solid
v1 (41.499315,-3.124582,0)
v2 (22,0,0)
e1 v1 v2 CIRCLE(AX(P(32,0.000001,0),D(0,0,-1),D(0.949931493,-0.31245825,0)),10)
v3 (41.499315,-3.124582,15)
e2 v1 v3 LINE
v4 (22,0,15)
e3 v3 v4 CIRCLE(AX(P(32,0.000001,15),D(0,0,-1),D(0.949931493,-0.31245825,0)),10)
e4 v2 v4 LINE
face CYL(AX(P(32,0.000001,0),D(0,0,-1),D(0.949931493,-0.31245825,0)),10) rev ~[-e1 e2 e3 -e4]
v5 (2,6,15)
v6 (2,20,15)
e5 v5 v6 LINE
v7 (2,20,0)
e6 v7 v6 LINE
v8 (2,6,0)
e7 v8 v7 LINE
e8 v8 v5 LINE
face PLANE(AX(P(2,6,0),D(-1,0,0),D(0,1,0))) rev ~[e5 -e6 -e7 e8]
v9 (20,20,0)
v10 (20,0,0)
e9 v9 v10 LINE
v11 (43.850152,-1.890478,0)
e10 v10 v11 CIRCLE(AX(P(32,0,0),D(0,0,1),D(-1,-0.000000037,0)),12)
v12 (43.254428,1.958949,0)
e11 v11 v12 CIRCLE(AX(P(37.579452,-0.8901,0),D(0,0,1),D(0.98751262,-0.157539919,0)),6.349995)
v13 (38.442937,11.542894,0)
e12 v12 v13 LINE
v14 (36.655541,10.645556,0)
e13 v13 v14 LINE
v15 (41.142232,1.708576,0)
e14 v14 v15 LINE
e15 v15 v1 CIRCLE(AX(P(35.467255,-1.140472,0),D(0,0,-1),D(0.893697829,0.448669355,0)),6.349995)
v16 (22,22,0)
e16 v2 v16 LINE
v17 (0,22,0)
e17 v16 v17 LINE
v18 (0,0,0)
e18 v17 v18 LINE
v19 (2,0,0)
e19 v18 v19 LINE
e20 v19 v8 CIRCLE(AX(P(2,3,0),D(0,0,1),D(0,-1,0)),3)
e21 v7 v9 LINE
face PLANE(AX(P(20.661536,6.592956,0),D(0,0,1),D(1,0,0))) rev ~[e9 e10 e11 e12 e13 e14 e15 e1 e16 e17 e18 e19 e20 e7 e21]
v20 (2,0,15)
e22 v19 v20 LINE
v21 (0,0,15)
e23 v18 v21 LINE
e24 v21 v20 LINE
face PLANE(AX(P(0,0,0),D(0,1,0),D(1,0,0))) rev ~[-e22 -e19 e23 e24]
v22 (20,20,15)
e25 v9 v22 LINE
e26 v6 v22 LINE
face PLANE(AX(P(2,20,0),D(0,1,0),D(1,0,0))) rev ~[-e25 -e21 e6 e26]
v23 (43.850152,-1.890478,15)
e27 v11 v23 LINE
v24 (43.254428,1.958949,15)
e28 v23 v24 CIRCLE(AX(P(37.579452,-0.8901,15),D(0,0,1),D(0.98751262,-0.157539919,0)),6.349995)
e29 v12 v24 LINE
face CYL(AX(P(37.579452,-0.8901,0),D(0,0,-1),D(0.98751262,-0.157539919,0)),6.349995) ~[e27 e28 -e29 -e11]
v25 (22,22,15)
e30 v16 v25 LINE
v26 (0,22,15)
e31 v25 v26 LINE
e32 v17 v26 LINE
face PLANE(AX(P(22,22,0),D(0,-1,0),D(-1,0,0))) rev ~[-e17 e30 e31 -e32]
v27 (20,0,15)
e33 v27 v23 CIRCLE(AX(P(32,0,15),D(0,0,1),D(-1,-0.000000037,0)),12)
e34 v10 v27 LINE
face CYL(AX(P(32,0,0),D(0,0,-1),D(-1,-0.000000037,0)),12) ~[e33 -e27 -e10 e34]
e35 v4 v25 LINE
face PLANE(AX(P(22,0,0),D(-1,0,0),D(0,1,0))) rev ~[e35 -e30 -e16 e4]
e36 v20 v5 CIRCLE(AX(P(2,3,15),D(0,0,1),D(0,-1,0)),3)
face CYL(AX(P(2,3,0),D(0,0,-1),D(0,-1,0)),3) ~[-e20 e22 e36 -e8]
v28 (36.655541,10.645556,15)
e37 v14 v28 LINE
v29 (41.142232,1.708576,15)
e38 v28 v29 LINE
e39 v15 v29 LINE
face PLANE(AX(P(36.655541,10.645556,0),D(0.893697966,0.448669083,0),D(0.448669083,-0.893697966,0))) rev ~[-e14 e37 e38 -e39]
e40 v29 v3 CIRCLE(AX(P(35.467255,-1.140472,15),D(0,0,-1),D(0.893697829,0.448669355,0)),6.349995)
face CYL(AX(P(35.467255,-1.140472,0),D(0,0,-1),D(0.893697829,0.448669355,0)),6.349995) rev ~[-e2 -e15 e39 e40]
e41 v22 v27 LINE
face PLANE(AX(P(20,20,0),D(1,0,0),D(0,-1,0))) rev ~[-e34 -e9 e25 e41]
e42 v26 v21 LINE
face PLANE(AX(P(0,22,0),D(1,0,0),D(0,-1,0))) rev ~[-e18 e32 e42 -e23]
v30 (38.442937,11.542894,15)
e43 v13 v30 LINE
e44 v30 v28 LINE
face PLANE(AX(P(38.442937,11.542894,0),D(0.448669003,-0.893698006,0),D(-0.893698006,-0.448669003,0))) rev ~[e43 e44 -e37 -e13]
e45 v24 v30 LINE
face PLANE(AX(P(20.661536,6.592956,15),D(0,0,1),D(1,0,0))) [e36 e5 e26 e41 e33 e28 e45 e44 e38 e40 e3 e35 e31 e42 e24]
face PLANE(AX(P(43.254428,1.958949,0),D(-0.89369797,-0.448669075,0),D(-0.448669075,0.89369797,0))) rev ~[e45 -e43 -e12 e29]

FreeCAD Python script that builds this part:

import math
import FreeCAD as App
import Part
import Sketcher

V = App.Vector
Q = App.Units.Quantity

doc = App.newDocument("Part")
body = doc.addObject("PartDesign::Body", "Body")

sketch1 = body.newObject("Sketcher::SketchObject", "Sketch")
sketch1.AttachmentSupport = (doc.getObject("XY_Plane"), [""])
sketch1.MapMode = "FlatFace"
sketch1.addGeometry([
    Part.LineSegment(V(0, 22, 0), V(0, 0, 0)),
    Part.LineSegment(V(0, 0, 0), V(2, 0, 0)),
    Part.ArcOfCircle(Part.Circle(V(2, 3, 0), V(0, 0, 1), 3), math.radians(-90), math.radians(90)),
    Part.LineSegment(V(2, 6, 0), V(2, 20, 0)),
    Part.LineSegment(V(2, 20, 0), V(20, 20, 0)),
    Part.LineSegment(V(20, 20, 0), V(20, 0, 0)),
    Part.ArcOfCircle(Part.Circle(V(32, 0, 0), V(0, 0, 1), 12), math.radians(-180), math.radians(-9)),
    Part.ArcOfCircle(Part.Circle(V(37.6, -0.9, 0), V(0, 0, 1), 6.3), math.radians(-9), math.radians(27)),
    Part.LineSegment(V(43.3, 2, 0), V(38.4, 11.5, 0)),
    Part.LineSegment(V(38.4, 11.5, 0), V(36.7, 10.6, 0)),
    Part.LineSegment(V(36.7, 10.6, 0), V(41.1, 1.7, 0)),
    Part.ArcOfCircle(Part.Circle(V(35.5, -1.1, 0), V(0, 0, 1), 6.3), math.radians(-18), math.radians(27)),
    Part.ArcOfCircle(Part.Circle(V(32, 0, 0), V(0, 0, 1), 10), math.radians(-180), math.radians(-18)),
    Part.LineSegment(V(22, 0, 0), V(22, 22, 0)),
    Part.LineSegment(V(22, 22, 0), V(0, 22, 0)),
], False)
sketch1.addConstraint([
    Sketcher.Constraint("Coincident", 0, 2, 1, 1),
    Sketcher.Constraint("Tangent", 1, 2, 2, 1),
    Sketcher.Constraint("Coincident", 2, 2, 3, 1),
    Sketcher.Constraint("Coincident", 3, 2, 4, 1),
    Sketcher.Constraint("Coincident", 4, 2, 5, 1),
    Sketcher.Constraint("Tangent", 5, 2, 6, 1),
    Sketcher.Constraint("Tangent", 6, 2, 7, 1),
    Sketcher.Constraint("Tangent", 7, 2, 8, 1),
    Sketcher.Constraint("Coincident", 8, 2, 9, 1),
    Sketcher.Constraint("Coincident", 9, 2, 10, 1),
    Sketcher.Constraint("Tangent", 10, 2, 11, 2),
    Sketcher.Constraint("Tangent", 11, 1, 12, 2),
    Sketcher.Constraint("Tangent", 12, 1, 13, 1),
    Sketcher.Constraint("Coincident", 13, 2, 14, 1),
    Sketcher.Constraint("Coincident", 14, 2, 0, 1),
    Sketcher.Constraint("Vertical", 0),
    Sketcher.Constraint("Horizontal", 1),
    Sketcher.Constraint("Vertical", 3),
    Sketcher.Constraint("Horizontal", 4),
    Sketcher.Constraint("Vertical", 5),
    Sketcher.Constraint("Vertical", 13),
    Sketcher.Constraint("Horizontal", 14),
    Sketcher.Constraint("Coincident", 0, 2, -1, 1),
    Sketcher.Constraint("Coincident", 12, 3, 6, 3),
    Sketcher.Constraint("Equal", 7, 11),
    Sketcher.Constraint("PointOnObject", 6, 3, -1),
    Sketcher.Constraint("Perpendicular", 8, 9),
    Sketcher.Constraint("Perpendicular", 9, 10),
    Sketcher.Constraint("Vertical", 1, 2, 2, 2),
    Sketcher.Constraint("Equal", 14, 0),
    Sketcher.Constraint("Radius", 2, Q("3 mm")),
    Sketcher.Constraint("Radius", 6, Q("12 mm")),
    Sketcher.Constraint("Radius", 12, Q("10 mm")),
    Sketcher.Constraint("DistanceX", 1, 1, 1, 2, Q("2 mm")),
    Sketcher.Constraint("DistanceX", 4, 1, 4, 2, Q("18 mm")),
    Sketcher.Constraint("DistanceY", 3, 1, 3, 2, Q("14 mm")),
    Sketcher.Constraint("Distance", 9, Q("2 mm")),
    Sketcher.Constraint("Distance", 10, Q("10 mm")),
    Sketcher.Constraint("Radius", 7, Q("6.349995 mm")),
    Sketcher.Constraint("DistanceY", 7, 3, -1, 1, Q("0.8901 mm")),
    Sketcher.Constraint("Distance", 8, Q("10.723919 mm")),
])
pad1 = body.newObject("PartDesign::Pad", "Pad")
pad1.Profile = sketch1
pad1.Length = 15

doc.recompute()
